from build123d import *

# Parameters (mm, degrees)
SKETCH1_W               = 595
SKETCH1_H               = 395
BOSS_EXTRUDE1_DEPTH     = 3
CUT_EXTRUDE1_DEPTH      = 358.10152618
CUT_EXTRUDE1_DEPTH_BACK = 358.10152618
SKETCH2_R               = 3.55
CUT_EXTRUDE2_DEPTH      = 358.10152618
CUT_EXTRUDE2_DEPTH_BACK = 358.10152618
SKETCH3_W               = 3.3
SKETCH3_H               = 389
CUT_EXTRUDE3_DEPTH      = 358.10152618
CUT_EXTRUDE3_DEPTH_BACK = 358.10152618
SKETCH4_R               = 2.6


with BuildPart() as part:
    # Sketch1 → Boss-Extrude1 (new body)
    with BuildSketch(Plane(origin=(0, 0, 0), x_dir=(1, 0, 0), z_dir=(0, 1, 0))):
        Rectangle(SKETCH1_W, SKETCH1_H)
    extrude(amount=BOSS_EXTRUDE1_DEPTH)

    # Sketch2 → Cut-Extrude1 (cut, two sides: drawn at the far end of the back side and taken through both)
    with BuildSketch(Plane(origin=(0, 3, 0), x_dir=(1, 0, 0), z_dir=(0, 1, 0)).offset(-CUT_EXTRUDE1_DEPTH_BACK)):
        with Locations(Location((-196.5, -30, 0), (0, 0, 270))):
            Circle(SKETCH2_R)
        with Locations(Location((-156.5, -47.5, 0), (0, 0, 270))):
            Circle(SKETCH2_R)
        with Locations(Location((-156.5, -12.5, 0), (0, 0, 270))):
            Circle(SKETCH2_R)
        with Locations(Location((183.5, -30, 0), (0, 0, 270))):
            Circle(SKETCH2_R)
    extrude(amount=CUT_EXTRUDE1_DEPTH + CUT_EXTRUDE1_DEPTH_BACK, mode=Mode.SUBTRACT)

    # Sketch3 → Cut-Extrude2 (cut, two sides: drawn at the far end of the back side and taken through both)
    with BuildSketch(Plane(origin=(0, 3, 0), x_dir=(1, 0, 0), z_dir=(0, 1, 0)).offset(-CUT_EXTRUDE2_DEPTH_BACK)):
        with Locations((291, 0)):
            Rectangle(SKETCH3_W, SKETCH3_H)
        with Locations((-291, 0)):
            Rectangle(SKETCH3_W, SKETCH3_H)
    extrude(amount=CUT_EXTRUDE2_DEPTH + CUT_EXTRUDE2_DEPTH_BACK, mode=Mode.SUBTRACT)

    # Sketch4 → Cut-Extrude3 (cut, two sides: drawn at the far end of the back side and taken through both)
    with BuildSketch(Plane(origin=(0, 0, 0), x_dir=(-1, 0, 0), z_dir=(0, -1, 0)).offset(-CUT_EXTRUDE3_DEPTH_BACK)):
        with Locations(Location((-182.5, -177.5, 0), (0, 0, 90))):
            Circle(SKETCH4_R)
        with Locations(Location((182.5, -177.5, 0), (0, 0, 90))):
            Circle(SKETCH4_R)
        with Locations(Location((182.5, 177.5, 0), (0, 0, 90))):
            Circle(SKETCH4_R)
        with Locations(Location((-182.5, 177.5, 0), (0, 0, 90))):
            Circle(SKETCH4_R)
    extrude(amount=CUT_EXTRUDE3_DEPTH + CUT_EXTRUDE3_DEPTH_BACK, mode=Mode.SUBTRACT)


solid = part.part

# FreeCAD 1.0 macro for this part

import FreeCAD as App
import Part
import Sketcher


def add_polygon(sketch, points):
    """Adds a closed chain of lines whose ends are joined by coincident constraints."""
    first, n = sketch.GeometryCount, len(points)
    for a, b in zip(points, points[1:] + points[:1]):
        sketch.addGeometry(Part.LineSegment(App.Vector(*a, 0), App.Vector(*b, 0)), False)
    for i in range(n):
        sketch.addConstraint(Sketcher.Constraint("Coincident", first + i, 2, first + (i + 1) % n, 1))

doc = App.newDocument("Part")
body = doc.addObject("PartDesign::Body", "Body")

# Sketch on XZ plane
sketch1 = body.newObject("Sketcher::SketchObject", "Sketch")
sketch1.AttachmentSupport = (doc.getObject("XZ_Plane"), [""])
sketch1.MapMode = "FlatFace"
add_polygon(sketch1, [(-297.5, -197.5), (-297.5, 197.5), (297.5, 197.5), (297.5, -197.5)])  # lines 0-3
sketch1.addConstraint(Sketcher.Constraint("Vertical", 0))
sketch1.addConstraint(Sketcher.Constraint("Horizontal", 1))
sketch1.addConstraint(Sketcher.Constraint("Vertical", 2))
sketch1.addConstraint(Sketcher.Constraint("Horizontal", 3))
sketch1.addConstraint(Sketcher.Constraint("Symmetric", 0, 2, 2, 2, -1, 1))
sketch1.addConstraint(Sketcher.Constraint("DistanceX", 1, 1, 1, 2, 595.0))
sketch1.addConstraint(Sketcher.Constraint("DistanceY", 0, 1, 0, 2, 395.0))
pad1 = body.newObject("PartDesign::Pad", "Pad")
pad1.Profile = sketch1
pad1.Length = 3
pad1.Reversed = True

# Sketch on XZ plane
sketch2 = body.newObject("Sketcher::SketchObject", "Sketch001")
sketch2.AttachmentSupport = (doc.getObject("XZ_Plane"), [""])
sketch2.MapMode = "FlatFace"
sketch2.AttachmentOffset = App.Placement(App.Vector(0, 0, -3), App.Rotation())
sketch2.addGeometry(Part.Circle(App.Vector(-196.5, 30, 0), App.Vector(0, 0, 1), 3.55), False)
sketch2.addGeometry(Part.Circle(App.Vector(-156.5, 47.5, 0), App.Vector(0, 0, 1), 3.55), False)
sketch2.addGeometry(Part.Circle(App.Vector(-156.5, 12.5, 0), App.Vector(0, 0, 1), 3.55), False)
sketch2.addGeometry(Part.Circle(App.Vector(183.5, 30, 0), App.Vector(0, 0, 1), 3.55), False)
sketch2.addConstraint(Sketcher.Constraint("Equal", 0, 1))
sketch2.addConstraint(Sketcher.Constraint("Equal", 1, 2))
sketch2.addConstraint(Sketcher.Constraint("Equal", 2, 3))
sketch2.addConstraint(Sketcher.Constraint("Horizontal", 0, 3, 3, 3))
sketch2.addConstraint(Sketcher.Constraint("Vertical", 1, 3, 2, 3))
sketch2.addConstraint(Sketcher.Constraint("Diameter", 0, 7.1))
sketch2.addConstraint(Sketcher.Constraint("DistanceY", -1, 1, 0, 3, 30.0))
sketch2.addConstraint(Sketcher.Constraint("DistanceX", 0, 3, 1, 3, 40.0))
sketch2.addConstraint(Sketcher.Constraint("DistanceY", 2, 3, 1, 3, 35.0))
sketch2.addConstraint(Sketcher.Constraint("DistanceX", 1, 3, 3, 3, 340.0))
sketch2.addConstraint(Sketcher.Constraint("DistanceX", 0, 3, -1, 1, 196.5))
sketch2.addConstraint(Sketcher.Constraint("DistanceY", -1, 1, 1, 3, 47.5))
pocket1 = body.newObject("PartDesign::Pocket", "Pocket")
pocket1.Profile = sketch2
pocket1.Type = "ThroughAll"
pocket1.Midplane = True

# Sketch on XZ plane
sketch3 = body.newObject("Sketcher::SketchObject", "Sketch002")
sketch3.AttachmentSupport = (doc.getObject("XZ_Plane"), [""])
sketch3.MapMode = "FlatFace"
sketch3.AttachmentOffset = App.Placement(App.Vector(0, 0, -3), App.Rotation())
add_polygon(sketch3, [(289.35, -194.5), (289.35, 194.5), (292.65, 194.5), (292.65, -194.5)])  # lines 0-3
add_polygon(sketch3, [(-292.65, -194.5), (-292.65, 194.5), (-289.35, 194.5), (-289.35, -194.5)])  # lines 4-7
sketch3.addConstraint(Sketcher.Constraint("Vertical", 0))
sketch3.addConstraint(Sketcher.Constraint("Horizontal", 1))
sketch3.addConstraint(Sketcher.Constraint("Vertical", 2))
sketch3.addConstraint(Sketcher.Constraint("Horizontal", 3))
sketch3.addConstraint(Sketcher.Constraint("Vertical", 4))
sketch3.addConstraint(Sketcher.Constraint("Horizontal", 5))
sketch3.addConstraint(Sketcher.Constraint("Vertical", 6))
sketch3.addConstraint(Sketcher.Constraint("Horizontal", 7))
sketch3.addConstraint(Sketcher.Constraint("Symmetric", 2, 2, 4, 2, -1, 1))
sketch3.addConstraint(Sketcher.Constraint("Symmetric", 0, 2, 6, 2, -1, 1))
sketch3.addConstraint(Sketcher.Constraint("Horizontal", 1, 2, 4, 2))
sketch3.addConstraint(Sketcher.Constraint("DistanceY", 0, 1, 0, 2, 389.0))
sketch3.addConstraint(Sketcher.Constraint("DistanceX", 1, 1, 1, 2, 3.3))
sketch3.addConstraint(Sketcher.Constraint("DistanceX", 4, 2, 0, 2, 582.0))
pocket2 = body.newObject("PartDesign::Pocket", "Pocket001")
pocket2.Profile = sketch3
pocket2.Type = "ThroughAll"
pocket2.Midplane = True

# Sketch on XZ plane
sketch4 = body.newObject("Sketcher::SketchObject", "Sketch003")
sketch4.AttachmentSupport = (doc.getObject("XZ_Plane"), [""])
sketch4.MapMode = "FlatFace"
sketch4.addGeometry(Part.Circle(App.Vector(182.5, 177.5, 0), App.Vector(0, 0, 1), 2.6), False)
sketch4.addGeometry(Part.Circle(App.Vector(-182.5, 177.5, 0), App.Vector(0, 0, 1), 2.6), False)
sketch4.addGeometry(Part.Circle(App.Vector(-182.5, -177.5, 0), App.Vector(0, 0, 1), 2.6), False)
sketch4.addGeometry(Part.Circle(App.Vector(182.5, -177.5, 0), App.Vector(0, 0, 1), 2.6), False)
sketch4.addConstraint(Sketcher.Constraint("Equal", 0, 1))
sketch4.addConstraint(Sketcher.Constraint("Equal", 1, 2))
sketch4.addConstraint(Sketcher.Constraint("Equal", 2, 3))
sketch4.addConstraint(Sketcher.Constraint("Symmetric", 0, 3, 2, 3, -1, 1))
sketch4.addConstraint(Sketcher.Constraint("Symmetric", 1, 3, 3, 3, -1, 1))
sketch4.addConstraint(Sketcher.Constraint("Symmetric", 0, 3, 1, 3, -2))
sketch4.addConstraint(Sketcher.Constraint("Diameter", 0, 5.2))
sketch4.addConstraint(Sketcher.Constraint("DistanceX", 1, 3, 0, 3, 365.0))
sketch4.addConstraint(Sketcher.Constraint("DistanceY", 2, 3, 1, 3, 355.0))
pocket3 = body.newObject("PartDesign::Pocket", "Pocket002")
pocket3.Profile = sketch4
pocket3.Type = "ThroughAll"
pocket3.Midplane = True

doc.recompute()
